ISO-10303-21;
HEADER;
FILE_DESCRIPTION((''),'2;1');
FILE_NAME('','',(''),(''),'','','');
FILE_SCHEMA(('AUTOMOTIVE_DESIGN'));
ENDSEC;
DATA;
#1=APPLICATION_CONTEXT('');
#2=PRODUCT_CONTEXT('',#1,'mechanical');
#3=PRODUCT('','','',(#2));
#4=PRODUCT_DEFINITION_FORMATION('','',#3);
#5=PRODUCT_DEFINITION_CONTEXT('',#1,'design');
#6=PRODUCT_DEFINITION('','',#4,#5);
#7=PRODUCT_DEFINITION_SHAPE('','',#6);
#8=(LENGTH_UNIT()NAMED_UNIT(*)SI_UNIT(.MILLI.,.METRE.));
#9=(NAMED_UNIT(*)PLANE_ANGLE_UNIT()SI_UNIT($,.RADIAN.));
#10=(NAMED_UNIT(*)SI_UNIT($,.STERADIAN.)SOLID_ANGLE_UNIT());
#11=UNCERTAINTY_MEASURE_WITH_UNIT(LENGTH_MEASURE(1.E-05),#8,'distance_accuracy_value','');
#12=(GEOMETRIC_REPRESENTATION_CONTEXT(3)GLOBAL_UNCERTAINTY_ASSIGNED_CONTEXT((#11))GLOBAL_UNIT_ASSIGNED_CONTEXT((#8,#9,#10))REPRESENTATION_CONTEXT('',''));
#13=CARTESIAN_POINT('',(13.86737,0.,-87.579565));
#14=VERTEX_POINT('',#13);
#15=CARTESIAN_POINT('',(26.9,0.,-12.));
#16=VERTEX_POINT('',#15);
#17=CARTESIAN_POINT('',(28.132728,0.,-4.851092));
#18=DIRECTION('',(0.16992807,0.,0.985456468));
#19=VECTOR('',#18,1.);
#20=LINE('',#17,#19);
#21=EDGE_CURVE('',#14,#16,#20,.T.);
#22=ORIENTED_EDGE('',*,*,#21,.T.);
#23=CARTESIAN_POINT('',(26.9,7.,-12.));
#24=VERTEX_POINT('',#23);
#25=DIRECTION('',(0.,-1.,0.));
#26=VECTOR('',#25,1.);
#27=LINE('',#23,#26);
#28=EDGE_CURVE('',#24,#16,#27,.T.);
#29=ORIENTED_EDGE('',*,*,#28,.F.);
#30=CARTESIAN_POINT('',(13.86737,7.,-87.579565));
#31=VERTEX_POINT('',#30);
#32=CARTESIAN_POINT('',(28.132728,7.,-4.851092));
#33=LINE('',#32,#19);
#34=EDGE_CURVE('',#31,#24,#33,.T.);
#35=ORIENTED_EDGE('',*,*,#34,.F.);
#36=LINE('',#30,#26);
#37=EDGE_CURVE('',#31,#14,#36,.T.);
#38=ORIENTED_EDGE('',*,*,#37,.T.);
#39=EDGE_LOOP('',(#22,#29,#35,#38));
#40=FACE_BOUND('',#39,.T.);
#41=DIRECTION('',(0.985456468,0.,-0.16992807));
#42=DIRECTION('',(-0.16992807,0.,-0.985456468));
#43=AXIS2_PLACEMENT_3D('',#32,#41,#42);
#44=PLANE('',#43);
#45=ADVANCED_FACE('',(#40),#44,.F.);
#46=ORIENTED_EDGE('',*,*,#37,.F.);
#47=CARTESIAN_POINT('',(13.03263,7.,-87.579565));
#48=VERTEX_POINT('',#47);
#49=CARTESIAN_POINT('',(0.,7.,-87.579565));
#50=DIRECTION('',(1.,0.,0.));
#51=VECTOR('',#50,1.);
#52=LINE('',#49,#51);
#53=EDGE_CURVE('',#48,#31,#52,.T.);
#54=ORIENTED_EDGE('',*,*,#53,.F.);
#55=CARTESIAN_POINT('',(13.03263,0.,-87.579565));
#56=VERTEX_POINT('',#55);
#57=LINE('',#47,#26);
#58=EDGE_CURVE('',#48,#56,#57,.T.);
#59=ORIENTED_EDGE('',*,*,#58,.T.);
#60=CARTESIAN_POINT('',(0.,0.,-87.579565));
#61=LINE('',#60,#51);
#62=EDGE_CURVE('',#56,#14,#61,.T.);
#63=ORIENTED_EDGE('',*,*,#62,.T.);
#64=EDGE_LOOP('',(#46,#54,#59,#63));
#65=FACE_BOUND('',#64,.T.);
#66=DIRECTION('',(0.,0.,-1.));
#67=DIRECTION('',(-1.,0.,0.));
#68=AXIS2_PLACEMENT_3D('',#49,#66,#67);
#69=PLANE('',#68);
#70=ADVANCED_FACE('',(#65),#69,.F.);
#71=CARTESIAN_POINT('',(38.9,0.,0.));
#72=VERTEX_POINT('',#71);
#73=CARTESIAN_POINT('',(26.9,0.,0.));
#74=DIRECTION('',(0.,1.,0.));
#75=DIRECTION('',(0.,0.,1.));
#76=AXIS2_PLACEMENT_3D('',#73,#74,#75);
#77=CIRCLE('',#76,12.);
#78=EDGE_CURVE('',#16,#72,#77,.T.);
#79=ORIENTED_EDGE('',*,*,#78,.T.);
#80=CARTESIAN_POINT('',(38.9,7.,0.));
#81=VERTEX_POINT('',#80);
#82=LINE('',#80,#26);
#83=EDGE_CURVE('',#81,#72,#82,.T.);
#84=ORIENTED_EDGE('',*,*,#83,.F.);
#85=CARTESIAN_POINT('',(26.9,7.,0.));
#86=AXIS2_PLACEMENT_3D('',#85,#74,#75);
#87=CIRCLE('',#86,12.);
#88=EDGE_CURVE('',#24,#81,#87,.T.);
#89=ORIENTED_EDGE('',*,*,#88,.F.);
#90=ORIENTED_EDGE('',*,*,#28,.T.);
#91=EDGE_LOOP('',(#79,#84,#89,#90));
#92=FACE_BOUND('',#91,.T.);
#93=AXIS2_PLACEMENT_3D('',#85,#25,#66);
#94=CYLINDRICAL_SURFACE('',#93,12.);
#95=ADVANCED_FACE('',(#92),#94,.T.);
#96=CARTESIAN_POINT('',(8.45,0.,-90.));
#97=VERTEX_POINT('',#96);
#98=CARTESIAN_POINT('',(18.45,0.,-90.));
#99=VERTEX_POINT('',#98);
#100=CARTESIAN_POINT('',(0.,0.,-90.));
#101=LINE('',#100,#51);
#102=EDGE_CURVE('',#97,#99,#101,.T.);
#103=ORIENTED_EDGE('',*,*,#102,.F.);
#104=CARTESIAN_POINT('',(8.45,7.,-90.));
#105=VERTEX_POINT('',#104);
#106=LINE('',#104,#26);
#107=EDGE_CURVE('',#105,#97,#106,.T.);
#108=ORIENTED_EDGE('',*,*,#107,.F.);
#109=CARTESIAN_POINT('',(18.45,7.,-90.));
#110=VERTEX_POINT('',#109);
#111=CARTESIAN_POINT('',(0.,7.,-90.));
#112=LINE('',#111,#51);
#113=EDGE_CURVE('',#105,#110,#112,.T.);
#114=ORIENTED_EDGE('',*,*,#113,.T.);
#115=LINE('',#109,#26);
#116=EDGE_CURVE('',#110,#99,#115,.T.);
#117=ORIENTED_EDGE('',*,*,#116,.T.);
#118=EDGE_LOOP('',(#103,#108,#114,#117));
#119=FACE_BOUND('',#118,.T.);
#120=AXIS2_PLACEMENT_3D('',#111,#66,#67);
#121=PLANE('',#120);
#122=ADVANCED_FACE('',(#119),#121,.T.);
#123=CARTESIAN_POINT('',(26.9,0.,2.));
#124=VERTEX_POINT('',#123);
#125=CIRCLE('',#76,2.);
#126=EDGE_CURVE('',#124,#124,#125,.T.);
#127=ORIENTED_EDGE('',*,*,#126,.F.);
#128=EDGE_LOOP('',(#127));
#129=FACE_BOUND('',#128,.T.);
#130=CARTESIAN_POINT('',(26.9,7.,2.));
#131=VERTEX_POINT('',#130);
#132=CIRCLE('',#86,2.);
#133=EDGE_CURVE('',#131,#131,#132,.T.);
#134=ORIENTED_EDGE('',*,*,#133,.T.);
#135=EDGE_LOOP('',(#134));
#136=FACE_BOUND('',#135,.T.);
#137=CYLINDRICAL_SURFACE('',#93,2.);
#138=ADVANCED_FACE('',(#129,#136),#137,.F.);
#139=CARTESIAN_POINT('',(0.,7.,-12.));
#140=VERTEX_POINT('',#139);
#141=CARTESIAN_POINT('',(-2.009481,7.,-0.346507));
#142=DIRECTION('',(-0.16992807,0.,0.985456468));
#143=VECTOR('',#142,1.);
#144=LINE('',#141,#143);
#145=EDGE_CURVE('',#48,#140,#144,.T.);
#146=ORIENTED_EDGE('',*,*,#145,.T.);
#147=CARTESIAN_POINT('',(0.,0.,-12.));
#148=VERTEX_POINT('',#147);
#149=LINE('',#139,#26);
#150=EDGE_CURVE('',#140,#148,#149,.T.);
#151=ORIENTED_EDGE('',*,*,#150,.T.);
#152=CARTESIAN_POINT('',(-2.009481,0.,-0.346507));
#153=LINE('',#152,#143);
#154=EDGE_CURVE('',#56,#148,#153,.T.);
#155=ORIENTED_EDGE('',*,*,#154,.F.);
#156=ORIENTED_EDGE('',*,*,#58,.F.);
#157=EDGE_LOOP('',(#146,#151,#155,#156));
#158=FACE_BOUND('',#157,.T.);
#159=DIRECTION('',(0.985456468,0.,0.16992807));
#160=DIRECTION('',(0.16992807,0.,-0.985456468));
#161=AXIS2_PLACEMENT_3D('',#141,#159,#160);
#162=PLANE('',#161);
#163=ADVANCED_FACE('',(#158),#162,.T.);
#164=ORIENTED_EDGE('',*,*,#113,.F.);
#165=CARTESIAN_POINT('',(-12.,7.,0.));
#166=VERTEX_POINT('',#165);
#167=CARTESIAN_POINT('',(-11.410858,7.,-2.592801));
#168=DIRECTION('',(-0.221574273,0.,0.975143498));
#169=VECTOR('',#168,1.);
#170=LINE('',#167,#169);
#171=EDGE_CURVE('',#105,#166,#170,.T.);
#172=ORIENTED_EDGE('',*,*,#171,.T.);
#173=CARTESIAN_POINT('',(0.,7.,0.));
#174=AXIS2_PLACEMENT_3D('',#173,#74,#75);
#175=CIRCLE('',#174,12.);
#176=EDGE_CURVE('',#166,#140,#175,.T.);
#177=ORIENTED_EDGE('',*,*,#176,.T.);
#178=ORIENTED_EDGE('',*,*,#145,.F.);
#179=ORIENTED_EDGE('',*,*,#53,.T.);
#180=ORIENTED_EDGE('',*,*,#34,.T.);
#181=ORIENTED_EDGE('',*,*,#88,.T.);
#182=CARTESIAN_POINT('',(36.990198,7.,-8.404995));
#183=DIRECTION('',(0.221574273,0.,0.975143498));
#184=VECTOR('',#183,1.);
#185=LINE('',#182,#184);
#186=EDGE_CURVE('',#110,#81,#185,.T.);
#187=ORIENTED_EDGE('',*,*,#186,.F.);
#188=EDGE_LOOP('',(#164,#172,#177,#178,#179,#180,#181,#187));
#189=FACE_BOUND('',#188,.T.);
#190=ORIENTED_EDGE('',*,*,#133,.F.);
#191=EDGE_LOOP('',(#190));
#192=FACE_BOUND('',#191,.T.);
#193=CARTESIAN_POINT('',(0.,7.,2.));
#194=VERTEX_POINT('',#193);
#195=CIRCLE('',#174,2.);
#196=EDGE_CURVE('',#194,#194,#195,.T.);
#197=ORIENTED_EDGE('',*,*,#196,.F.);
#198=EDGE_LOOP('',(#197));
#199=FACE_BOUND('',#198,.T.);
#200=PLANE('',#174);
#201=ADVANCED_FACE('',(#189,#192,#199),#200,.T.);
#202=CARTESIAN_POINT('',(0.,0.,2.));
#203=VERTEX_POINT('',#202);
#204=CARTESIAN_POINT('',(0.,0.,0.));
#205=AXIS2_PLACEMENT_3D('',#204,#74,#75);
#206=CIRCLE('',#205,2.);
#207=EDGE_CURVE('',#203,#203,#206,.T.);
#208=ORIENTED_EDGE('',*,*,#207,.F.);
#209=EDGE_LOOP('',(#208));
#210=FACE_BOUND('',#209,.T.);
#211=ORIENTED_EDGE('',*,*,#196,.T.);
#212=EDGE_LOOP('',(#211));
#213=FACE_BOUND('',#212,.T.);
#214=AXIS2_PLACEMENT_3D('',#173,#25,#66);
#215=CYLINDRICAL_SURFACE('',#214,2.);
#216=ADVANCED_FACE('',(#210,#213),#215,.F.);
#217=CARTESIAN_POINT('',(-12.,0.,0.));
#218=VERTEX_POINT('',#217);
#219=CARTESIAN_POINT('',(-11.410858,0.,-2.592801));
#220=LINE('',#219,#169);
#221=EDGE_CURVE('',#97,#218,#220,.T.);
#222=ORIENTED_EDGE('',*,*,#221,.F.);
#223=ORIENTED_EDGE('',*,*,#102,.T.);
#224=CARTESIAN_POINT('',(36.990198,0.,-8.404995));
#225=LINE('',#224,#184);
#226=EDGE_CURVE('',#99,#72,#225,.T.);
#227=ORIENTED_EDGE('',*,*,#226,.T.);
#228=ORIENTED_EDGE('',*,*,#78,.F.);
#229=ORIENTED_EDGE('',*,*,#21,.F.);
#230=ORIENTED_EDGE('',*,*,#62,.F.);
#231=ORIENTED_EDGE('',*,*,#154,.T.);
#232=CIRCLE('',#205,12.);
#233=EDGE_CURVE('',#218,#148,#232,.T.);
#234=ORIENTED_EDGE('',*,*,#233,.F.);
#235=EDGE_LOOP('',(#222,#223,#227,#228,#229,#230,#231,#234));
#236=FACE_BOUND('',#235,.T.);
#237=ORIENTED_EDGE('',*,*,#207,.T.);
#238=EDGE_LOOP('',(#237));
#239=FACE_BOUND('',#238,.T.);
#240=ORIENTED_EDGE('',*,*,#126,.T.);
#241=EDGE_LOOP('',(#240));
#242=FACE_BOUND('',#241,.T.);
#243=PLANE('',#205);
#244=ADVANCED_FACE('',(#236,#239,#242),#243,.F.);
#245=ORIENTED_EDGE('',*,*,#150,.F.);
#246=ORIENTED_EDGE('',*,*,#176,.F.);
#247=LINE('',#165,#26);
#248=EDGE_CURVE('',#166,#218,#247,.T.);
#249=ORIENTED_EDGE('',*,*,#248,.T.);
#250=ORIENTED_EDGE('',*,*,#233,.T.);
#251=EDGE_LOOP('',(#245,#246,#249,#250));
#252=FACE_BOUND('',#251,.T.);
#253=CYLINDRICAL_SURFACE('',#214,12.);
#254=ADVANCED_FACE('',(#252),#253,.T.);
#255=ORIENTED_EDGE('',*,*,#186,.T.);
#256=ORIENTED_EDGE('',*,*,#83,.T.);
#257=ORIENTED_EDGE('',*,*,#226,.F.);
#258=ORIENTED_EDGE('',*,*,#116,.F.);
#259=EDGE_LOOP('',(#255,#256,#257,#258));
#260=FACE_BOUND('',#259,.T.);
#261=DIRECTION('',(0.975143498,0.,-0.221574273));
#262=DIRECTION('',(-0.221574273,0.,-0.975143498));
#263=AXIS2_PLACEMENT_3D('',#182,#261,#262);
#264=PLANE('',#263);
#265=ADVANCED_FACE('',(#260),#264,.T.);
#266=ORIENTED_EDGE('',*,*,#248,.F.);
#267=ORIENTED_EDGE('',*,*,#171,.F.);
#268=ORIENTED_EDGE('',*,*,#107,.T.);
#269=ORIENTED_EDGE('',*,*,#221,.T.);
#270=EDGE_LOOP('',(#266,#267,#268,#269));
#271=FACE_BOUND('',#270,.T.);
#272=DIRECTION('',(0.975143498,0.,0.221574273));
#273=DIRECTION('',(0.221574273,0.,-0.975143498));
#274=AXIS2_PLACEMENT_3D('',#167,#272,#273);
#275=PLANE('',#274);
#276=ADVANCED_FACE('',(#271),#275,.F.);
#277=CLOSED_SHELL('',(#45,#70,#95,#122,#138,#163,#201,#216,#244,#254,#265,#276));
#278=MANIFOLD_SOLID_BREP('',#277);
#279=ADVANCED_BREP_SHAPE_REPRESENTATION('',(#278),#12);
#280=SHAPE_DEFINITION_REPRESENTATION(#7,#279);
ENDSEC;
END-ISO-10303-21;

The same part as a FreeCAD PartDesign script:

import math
import FreeCAD as App
import Part
import Sketcher

V = App.Vector
Q = App.Units.Quantity

doc = App.newDocument("Part")
body = doc.addObject("PartDesign::Body", "Body")

# Sketch on XZ plane
sketch1 = body.newObject("Sketcher::SketchObject", "Sketch")
sketch1.AttachmentSupport = (doc.getObject("XZ_Plane"), [""])
sketch1.MapMode = "FlatFace"
sketch1.addGeometry(Part.LineSegment(V(13, -87.6, 0), V(13.9, -87.6, 0)), False)
sketch1.addGeometry(Part.LineSegment(V(13.9, -87.6, 0), V(26.9, -12, 0)), False)
sketch1.addGeometry(Part.ArcOfCircle(Part.Circle(V(26.9, 0, 0), V(0, 0, 1), 12), math.radians(0), math.radians(270)), False)
sketch1.addGeometry(Part.LineSegment(V(38.9, 0, 0), V(18.4, -90, 0)), False)
sketch1.addGeometry(Part.LineSegment(V(18.4, -90, 0), V(8.4, -90, 0)), False)
sketch1.addGeometry(Part.LineSegment(V(8.4, -90, 0), V(-12, 0, 0)), False)
sketch1.addGeometry(Part.ArcOfCircle(Part.Circle(V(0, 0, 0), V(0, 0, 1), 12), math.radians(-90), math.radians(180)), False)
sketch1.addGeometry(Part.LineSegment(V(0, -12, 0), V(13, -87.6, 0)), False)
sketch1.addGeometry(Part.Circle(V(0, 0, 0), V(0, 0, 1), 2), False)
sketch1.addGeometry(Part.Circle(V(26.9, 0, 0), V(0, 0, 1), 2), False)
sketch1.addConstraint(Sketcher.Constraint("Coincident", 0, 2, 1, 1))
sketch1.addConstraint(Sketcher.Constraint("Coincident", 1, 2, 2, 2))
sketch1.addConstraint(Sketcher.Constraint("Coincident", 2, 1, 3, 1))
sketch1.addConstraint(Sketcher.Constraint("Coincident", 3, 2, 4, 1))
sketch1.addConstraint(Sketcher.Constraint("Coincident", 4, 2, 5, 1))
sketch1.addConstraint(Sketcher.Constraint("Coincident", 5, 2, 6, 2))
sketch1.addConstraint(Sketcher.Constraint("Coincident", 6, 1, 7, 1))
sketch1.addConstraint(Sketcher.Constraint("Coincident", 7, 2, 0, 1))
sketch1.addConstraint(Sketcher.Constraint("Horizontal", 0))
sketch1.addConstraint(Sketcher.Constraint("Horizontal", 4))
sketch1.addConstraint(Sketcher.Constraint("Coincident", 6, 3, -1, 1))
sketch1.addConstraint(Sketcher.Constraint("Coincident", 8, 3, -1, 1))
sketch1.addConstraint(Sketcher.Constraint("Coincident", 9, 3, 2, 3))
sketch1.addConstraint(Sketcher.Constraint("Equal", 2, 6))
sketch1.addConstraint(Sketcher.Constraint("Equal", 8, 9))
sketch1.addConstraint(Sketcher.Constraint("PointOnObject", 2, 3, -1))
sketch1.addConstraint(Sketcher.Constraint("PointOnObject", 2, 1, -1))
sketch1.addConstraint(Sketcher.Constraint("PointOnObject", 5, 2, -1))
sketch1.addConstraint(Sketcher.Constraint("PointOnObject", 6, 1, -2))
sketch1.addConstraint(Sketcher.Constraint("Vertical", 9, 3, 1, 2))
sketch1.addConstraint(Sketcher.Constraint("Equal", 3, 5))
sketch1.addConstraint(Sketcher.Constraint("Equal", 1, 7))
sketch1.addConstraint(Sketcher.Constraint("Diameter", 8, Q("4 mm")))
sketch1.addConstraint(Sketcher.Constraint("Radius", 2, Q("12 mm")))
sketch1.addConstraint(Sketcher.Constraint("DistanceX", 4, 2, 4, 1, Q("10 mm")))
sketch1.addConstraint(Sketcher.Constraint("DistanceY", 3, 2, -1, 1, Q("90 mm")))
sketch1.addConstraint(Sketcher.Constraint("DistanceX", -1, 1, 2, 3, Q("26.9 mm")))
sketch1.addConstraint(Sketcher.Constraint("DistanceX", 0, 1, 0, 2, Q("0.83474 mm")))
sketch1.addConstraint(Sketcher.Constraint("Distance", 1, Q("76.694981 mm")))
pad1 = body.newObject("PartDesign::Pad", "Pad")
pad1.Profile = sketch1
pad1.Length = 7
pad1.Reversed = True

doc.recompute()
